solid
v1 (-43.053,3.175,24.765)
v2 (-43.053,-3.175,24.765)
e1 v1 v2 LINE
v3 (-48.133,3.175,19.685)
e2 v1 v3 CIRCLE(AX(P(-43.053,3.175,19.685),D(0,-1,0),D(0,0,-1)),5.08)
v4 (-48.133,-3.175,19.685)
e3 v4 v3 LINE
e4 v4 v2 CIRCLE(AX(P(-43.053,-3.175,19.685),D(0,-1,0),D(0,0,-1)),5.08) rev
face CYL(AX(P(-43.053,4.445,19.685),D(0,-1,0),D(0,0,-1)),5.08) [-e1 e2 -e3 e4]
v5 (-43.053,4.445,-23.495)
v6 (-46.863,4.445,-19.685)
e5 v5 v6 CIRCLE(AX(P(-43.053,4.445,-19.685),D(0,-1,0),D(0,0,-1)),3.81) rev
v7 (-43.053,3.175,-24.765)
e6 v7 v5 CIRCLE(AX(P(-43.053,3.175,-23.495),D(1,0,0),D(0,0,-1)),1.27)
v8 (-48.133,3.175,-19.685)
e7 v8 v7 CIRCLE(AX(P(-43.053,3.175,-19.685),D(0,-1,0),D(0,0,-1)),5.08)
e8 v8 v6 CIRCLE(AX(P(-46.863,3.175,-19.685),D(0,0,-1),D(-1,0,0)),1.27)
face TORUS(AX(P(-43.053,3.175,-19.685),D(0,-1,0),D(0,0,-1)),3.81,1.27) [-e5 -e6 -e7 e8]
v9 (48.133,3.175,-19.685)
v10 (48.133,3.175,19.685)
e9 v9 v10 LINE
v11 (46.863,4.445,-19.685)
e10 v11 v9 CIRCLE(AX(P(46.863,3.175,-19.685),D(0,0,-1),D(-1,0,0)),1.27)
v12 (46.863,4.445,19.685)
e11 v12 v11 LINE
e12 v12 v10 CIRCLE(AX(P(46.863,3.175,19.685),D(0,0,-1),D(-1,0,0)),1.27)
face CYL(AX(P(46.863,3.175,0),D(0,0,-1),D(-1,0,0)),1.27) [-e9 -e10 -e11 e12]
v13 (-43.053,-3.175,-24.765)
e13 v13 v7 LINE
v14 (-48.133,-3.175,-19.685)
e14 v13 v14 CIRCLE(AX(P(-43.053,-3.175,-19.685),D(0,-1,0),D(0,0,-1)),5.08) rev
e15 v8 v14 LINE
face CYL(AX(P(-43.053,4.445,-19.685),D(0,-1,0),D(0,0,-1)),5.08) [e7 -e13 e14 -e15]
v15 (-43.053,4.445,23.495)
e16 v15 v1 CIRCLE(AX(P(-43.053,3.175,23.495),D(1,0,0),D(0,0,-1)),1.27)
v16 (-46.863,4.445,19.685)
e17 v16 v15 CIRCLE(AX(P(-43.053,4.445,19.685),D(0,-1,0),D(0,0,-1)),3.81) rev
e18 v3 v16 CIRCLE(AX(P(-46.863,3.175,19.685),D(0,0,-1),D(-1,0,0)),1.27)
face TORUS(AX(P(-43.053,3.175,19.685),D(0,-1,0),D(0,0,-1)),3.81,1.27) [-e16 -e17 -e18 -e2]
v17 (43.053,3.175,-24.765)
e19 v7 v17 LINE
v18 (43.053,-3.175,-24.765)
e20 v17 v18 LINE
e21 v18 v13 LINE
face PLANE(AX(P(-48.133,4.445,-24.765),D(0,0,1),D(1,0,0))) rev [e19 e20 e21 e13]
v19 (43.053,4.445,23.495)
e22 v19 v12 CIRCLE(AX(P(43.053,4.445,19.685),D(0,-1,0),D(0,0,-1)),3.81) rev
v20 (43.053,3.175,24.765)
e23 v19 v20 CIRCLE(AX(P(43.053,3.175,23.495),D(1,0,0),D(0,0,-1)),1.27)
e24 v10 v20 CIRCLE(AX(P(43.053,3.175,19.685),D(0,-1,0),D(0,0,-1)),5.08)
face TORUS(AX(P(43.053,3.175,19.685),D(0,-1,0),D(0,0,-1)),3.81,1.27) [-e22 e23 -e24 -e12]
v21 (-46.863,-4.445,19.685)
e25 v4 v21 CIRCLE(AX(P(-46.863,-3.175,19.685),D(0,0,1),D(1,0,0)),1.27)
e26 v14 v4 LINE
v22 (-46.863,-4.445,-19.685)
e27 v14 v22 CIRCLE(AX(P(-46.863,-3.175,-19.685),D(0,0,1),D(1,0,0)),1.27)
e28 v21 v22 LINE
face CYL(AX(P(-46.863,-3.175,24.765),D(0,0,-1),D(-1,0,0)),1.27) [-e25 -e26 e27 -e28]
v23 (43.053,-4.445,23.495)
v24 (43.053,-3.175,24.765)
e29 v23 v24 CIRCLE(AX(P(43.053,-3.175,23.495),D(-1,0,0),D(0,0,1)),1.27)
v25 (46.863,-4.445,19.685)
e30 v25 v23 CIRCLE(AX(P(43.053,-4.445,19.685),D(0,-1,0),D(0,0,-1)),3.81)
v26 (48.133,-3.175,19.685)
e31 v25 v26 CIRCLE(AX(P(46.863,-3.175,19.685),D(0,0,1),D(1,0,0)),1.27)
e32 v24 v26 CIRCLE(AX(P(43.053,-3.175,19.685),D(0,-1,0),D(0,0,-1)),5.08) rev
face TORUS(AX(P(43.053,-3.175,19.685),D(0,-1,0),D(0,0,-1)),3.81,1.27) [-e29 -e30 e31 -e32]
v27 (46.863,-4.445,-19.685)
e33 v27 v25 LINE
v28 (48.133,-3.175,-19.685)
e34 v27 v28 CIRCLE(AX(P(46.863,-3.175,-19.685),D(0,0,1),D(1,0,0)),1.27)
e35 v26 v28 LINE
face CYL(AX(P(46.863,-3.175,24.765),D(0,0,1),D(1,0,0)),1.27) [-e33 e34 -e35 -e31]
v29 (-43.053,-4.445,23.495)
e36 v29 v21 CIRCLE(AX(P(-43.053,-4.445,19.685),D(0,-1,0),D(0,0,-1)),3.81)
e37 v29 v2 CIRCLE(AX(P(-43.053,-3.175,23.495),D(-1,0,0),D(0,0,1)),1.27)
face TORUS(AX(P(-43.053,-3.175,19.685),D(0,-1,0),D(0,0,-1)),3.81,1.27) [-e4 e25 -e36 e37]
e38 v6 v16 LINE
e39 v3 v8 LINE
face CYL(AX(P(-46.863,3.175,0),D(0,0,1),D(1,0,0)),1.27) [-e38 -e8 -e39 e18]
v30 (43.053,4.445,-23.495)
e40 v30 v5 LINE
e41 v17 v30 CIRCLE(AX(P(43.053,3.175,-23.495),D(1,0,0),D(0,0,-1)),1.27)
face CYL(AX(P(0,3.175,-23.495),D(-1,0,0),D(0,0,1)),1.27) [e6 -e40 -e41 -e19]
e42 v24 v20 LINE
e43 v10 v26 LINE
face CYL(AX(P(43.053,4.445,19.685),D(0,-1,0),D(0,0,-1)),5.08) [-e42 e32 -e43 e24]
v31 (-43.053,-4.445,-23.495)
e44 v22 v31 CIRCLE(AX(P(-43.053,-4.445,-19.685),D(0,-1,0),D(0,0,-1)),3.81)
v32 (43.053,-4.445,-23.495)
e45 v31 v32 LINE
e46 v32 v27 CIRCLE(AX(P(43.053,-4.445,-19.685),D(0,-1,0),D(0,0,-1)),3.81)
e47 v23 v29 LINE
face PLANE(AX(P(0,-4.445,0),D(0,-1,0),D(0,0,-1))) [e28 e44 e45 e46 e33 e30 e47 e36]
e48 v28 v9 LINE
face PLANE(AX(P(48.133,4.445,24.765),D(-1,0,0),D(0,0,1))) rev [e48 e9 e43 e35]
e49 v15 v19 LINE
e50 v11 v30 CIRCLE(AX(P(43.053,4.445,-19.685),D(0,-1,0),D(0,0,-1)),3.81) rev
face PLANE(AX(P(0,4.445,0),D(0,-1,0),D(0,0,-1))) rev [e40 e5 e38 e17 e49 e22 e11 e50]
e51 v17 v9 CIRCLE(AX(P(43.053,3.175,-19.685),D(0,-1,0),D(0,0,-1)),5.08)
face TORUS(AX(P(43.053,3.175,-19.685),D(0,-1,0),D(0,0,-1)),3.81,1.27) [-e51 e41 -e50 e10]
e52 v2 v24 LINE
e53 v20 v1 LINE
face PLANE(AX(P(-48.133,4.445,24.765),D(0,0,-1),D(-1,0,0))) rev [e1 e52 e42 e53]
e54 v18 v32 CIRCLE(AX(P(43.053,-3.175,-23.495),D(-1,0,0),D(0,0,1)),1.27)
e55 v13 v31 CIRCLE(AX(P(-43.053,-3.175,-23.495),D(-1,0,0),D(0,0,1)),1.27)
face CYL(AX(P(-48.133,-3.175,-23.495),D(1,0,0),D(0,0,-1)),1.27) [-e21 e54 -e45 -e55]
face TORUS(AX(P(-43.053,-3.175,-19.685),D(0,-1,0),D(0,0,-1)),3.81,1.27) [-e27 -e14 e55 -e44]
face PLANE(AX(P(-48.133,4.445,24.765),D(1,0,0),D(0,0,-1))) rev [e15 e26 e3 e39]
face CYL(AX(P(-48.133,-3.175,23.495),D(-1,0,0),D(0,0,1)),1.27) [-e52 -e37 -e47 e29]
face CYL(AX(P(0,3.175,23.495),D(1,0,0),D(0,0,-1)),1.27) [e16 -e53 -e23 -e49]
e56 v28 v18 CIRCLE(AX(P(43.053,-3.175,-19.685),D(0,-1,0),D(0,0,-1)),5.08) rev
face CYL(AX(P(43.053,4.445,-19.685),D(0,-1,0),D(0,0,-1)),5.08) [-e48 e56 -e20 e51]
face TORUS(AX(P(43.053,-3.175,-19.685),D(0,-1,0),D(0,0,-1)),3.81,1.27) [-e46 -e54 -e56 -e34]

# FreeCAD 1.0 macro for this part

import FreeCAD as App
import Part
import Sketcher
Q = App.Units.Quantity


def edges_at(feature, points):
    """Names of the edges that pass closest to the given points."""
    edges = feature.Shape.Edges
    near = lambda p: min(range(len(edges)), key=lambda i: edges[i].distToShape(Part.Vertex(*p))[0])
    return sorted({f"Edge{near(p) + 1}" for p in points})


def add_polygon(sketch, points):
    """Adds a closed chain of lines whose ends are joined by coincident constraints."""
    first, n = sketch.GeometryCount, len(points)
    for a, b in zip(points, points[1:] + points[:1]):
        sketch.addGeometry(Part.LineSegment(App.Vector(*a, 0), App.Vector(*b, 0)), False)
    for i in range(n):
        sketch.addConstraint(Sketcher.Constraint("Coincident", first + i, 2, first + (i + 1) % n, 1))

doc = App.newDocument("Part")
params = doc.addObject("Spreadsheet::Sheet", "Params")
for row, (alias, value) in enumerate([
    ("sketch1_width", "3.79 in"),
    ("sketch1_height", "1.95 in"),
    ("pad1_length", "0.35 in"),
    ("fillet_radius", "0.2 in"),
    ("fillet2_radius", "0.05 in"),
], start=1):
    params.set(f"A{row}", alias)
    params.set(f"B{row}", "=" + value)
    params.setAlias(f"B{row}", alias)

body = doc.addObject("PartDesign::Body", "Body")

# Sketch on XZ plane
sketch1 = doc.addObject("Sketcher::SketchObject", "Sketch")
body.addObject(sketch1)
sketch1.AttachmentSupport = (doc.XZ_Plane, [""])
sketch1.MapMode = "FlatFace"
add_polygon(sketch1, [(-48, -25), (-48, 25), (48, 25), (48, -25)])  # lines 0-3
sketch1.addConstraint([
    Sketcher.Constraint("Vertical", 0),
    Sketcher.Constraint("Horizontal", 1),
    Sketcher.Constraint("Vertical", 2),
    Sketcher.Constraint("Horizontal", 3),
    Sketcher.Constraint("Symmetric", 0, 2, 2, 2, -1, 1),
    Sketcher.Constraint("DistanceX", 1, 1, 1, 2, Q("3.79 in")),
    Sketcher.Constraint("DistanceY", 0, 1, 0, 2, Q("1.95 in")),
])
sketch1.setExpression("Constraints[9]", "Params.sketch1_width")
sketch1.setExpression("Constraints[10]", "Params.sketch1_height")
pad1 = doc.addObject("PartDesign::Pad", "Pad")
body.addObject(pad1)
pad1.Profile = sketch1
pad1.setExpression("Length", "Params.pad1_length")
pad1.Midplane = True
doc.recompute()

fillet = doc.addObject("PartDesign::Fillet", "Fillet")
body.addObject(fillet)
fillet.Base = (pad1, edges_at(pad1, [
    (48.133, 0, 24.765),
    (-48.133, 0, 24.765),
    (-48.133, 0, -24.765),
    (48.133, 0, -24.765),
]))
fillet.setExpression("Radius", "Params.fillet_radius")
doc.recompute()

fillet2 = doc.addObject("PartDesign::Fillet", "Fillet001")
body.addObject(fillet2)
fillet2.Base = (fillet, edges_at(fillet, [
    (-48.133, -4.445, 0),
    (-48.133, 4.445, 0),
    (48.133, -4.445, 0),
    (0, -4.445, 24.765),
    (0, -4.445, -24.765),
    (46.645, -4.445, 23.277),
    (46.645, -4.445, -23.277),
    (-46.645, -4.445, 23.277),
    (-46.645, -4.445, -23.277),
    (0, 4.445, -24.765),
    (48.133, 4.445, 0),
    (0, 4.445, 24.765),
    (46.645, 4.445, 23.277),
    (46.645, 4.445, -23.277),
    (-46.645, 4.445, 23.277),
    (-46.645, 4.445, -23.277),
]))
fillet2.setExpression("Radius", "Params.fillet2_radius")

doc.recompute()
